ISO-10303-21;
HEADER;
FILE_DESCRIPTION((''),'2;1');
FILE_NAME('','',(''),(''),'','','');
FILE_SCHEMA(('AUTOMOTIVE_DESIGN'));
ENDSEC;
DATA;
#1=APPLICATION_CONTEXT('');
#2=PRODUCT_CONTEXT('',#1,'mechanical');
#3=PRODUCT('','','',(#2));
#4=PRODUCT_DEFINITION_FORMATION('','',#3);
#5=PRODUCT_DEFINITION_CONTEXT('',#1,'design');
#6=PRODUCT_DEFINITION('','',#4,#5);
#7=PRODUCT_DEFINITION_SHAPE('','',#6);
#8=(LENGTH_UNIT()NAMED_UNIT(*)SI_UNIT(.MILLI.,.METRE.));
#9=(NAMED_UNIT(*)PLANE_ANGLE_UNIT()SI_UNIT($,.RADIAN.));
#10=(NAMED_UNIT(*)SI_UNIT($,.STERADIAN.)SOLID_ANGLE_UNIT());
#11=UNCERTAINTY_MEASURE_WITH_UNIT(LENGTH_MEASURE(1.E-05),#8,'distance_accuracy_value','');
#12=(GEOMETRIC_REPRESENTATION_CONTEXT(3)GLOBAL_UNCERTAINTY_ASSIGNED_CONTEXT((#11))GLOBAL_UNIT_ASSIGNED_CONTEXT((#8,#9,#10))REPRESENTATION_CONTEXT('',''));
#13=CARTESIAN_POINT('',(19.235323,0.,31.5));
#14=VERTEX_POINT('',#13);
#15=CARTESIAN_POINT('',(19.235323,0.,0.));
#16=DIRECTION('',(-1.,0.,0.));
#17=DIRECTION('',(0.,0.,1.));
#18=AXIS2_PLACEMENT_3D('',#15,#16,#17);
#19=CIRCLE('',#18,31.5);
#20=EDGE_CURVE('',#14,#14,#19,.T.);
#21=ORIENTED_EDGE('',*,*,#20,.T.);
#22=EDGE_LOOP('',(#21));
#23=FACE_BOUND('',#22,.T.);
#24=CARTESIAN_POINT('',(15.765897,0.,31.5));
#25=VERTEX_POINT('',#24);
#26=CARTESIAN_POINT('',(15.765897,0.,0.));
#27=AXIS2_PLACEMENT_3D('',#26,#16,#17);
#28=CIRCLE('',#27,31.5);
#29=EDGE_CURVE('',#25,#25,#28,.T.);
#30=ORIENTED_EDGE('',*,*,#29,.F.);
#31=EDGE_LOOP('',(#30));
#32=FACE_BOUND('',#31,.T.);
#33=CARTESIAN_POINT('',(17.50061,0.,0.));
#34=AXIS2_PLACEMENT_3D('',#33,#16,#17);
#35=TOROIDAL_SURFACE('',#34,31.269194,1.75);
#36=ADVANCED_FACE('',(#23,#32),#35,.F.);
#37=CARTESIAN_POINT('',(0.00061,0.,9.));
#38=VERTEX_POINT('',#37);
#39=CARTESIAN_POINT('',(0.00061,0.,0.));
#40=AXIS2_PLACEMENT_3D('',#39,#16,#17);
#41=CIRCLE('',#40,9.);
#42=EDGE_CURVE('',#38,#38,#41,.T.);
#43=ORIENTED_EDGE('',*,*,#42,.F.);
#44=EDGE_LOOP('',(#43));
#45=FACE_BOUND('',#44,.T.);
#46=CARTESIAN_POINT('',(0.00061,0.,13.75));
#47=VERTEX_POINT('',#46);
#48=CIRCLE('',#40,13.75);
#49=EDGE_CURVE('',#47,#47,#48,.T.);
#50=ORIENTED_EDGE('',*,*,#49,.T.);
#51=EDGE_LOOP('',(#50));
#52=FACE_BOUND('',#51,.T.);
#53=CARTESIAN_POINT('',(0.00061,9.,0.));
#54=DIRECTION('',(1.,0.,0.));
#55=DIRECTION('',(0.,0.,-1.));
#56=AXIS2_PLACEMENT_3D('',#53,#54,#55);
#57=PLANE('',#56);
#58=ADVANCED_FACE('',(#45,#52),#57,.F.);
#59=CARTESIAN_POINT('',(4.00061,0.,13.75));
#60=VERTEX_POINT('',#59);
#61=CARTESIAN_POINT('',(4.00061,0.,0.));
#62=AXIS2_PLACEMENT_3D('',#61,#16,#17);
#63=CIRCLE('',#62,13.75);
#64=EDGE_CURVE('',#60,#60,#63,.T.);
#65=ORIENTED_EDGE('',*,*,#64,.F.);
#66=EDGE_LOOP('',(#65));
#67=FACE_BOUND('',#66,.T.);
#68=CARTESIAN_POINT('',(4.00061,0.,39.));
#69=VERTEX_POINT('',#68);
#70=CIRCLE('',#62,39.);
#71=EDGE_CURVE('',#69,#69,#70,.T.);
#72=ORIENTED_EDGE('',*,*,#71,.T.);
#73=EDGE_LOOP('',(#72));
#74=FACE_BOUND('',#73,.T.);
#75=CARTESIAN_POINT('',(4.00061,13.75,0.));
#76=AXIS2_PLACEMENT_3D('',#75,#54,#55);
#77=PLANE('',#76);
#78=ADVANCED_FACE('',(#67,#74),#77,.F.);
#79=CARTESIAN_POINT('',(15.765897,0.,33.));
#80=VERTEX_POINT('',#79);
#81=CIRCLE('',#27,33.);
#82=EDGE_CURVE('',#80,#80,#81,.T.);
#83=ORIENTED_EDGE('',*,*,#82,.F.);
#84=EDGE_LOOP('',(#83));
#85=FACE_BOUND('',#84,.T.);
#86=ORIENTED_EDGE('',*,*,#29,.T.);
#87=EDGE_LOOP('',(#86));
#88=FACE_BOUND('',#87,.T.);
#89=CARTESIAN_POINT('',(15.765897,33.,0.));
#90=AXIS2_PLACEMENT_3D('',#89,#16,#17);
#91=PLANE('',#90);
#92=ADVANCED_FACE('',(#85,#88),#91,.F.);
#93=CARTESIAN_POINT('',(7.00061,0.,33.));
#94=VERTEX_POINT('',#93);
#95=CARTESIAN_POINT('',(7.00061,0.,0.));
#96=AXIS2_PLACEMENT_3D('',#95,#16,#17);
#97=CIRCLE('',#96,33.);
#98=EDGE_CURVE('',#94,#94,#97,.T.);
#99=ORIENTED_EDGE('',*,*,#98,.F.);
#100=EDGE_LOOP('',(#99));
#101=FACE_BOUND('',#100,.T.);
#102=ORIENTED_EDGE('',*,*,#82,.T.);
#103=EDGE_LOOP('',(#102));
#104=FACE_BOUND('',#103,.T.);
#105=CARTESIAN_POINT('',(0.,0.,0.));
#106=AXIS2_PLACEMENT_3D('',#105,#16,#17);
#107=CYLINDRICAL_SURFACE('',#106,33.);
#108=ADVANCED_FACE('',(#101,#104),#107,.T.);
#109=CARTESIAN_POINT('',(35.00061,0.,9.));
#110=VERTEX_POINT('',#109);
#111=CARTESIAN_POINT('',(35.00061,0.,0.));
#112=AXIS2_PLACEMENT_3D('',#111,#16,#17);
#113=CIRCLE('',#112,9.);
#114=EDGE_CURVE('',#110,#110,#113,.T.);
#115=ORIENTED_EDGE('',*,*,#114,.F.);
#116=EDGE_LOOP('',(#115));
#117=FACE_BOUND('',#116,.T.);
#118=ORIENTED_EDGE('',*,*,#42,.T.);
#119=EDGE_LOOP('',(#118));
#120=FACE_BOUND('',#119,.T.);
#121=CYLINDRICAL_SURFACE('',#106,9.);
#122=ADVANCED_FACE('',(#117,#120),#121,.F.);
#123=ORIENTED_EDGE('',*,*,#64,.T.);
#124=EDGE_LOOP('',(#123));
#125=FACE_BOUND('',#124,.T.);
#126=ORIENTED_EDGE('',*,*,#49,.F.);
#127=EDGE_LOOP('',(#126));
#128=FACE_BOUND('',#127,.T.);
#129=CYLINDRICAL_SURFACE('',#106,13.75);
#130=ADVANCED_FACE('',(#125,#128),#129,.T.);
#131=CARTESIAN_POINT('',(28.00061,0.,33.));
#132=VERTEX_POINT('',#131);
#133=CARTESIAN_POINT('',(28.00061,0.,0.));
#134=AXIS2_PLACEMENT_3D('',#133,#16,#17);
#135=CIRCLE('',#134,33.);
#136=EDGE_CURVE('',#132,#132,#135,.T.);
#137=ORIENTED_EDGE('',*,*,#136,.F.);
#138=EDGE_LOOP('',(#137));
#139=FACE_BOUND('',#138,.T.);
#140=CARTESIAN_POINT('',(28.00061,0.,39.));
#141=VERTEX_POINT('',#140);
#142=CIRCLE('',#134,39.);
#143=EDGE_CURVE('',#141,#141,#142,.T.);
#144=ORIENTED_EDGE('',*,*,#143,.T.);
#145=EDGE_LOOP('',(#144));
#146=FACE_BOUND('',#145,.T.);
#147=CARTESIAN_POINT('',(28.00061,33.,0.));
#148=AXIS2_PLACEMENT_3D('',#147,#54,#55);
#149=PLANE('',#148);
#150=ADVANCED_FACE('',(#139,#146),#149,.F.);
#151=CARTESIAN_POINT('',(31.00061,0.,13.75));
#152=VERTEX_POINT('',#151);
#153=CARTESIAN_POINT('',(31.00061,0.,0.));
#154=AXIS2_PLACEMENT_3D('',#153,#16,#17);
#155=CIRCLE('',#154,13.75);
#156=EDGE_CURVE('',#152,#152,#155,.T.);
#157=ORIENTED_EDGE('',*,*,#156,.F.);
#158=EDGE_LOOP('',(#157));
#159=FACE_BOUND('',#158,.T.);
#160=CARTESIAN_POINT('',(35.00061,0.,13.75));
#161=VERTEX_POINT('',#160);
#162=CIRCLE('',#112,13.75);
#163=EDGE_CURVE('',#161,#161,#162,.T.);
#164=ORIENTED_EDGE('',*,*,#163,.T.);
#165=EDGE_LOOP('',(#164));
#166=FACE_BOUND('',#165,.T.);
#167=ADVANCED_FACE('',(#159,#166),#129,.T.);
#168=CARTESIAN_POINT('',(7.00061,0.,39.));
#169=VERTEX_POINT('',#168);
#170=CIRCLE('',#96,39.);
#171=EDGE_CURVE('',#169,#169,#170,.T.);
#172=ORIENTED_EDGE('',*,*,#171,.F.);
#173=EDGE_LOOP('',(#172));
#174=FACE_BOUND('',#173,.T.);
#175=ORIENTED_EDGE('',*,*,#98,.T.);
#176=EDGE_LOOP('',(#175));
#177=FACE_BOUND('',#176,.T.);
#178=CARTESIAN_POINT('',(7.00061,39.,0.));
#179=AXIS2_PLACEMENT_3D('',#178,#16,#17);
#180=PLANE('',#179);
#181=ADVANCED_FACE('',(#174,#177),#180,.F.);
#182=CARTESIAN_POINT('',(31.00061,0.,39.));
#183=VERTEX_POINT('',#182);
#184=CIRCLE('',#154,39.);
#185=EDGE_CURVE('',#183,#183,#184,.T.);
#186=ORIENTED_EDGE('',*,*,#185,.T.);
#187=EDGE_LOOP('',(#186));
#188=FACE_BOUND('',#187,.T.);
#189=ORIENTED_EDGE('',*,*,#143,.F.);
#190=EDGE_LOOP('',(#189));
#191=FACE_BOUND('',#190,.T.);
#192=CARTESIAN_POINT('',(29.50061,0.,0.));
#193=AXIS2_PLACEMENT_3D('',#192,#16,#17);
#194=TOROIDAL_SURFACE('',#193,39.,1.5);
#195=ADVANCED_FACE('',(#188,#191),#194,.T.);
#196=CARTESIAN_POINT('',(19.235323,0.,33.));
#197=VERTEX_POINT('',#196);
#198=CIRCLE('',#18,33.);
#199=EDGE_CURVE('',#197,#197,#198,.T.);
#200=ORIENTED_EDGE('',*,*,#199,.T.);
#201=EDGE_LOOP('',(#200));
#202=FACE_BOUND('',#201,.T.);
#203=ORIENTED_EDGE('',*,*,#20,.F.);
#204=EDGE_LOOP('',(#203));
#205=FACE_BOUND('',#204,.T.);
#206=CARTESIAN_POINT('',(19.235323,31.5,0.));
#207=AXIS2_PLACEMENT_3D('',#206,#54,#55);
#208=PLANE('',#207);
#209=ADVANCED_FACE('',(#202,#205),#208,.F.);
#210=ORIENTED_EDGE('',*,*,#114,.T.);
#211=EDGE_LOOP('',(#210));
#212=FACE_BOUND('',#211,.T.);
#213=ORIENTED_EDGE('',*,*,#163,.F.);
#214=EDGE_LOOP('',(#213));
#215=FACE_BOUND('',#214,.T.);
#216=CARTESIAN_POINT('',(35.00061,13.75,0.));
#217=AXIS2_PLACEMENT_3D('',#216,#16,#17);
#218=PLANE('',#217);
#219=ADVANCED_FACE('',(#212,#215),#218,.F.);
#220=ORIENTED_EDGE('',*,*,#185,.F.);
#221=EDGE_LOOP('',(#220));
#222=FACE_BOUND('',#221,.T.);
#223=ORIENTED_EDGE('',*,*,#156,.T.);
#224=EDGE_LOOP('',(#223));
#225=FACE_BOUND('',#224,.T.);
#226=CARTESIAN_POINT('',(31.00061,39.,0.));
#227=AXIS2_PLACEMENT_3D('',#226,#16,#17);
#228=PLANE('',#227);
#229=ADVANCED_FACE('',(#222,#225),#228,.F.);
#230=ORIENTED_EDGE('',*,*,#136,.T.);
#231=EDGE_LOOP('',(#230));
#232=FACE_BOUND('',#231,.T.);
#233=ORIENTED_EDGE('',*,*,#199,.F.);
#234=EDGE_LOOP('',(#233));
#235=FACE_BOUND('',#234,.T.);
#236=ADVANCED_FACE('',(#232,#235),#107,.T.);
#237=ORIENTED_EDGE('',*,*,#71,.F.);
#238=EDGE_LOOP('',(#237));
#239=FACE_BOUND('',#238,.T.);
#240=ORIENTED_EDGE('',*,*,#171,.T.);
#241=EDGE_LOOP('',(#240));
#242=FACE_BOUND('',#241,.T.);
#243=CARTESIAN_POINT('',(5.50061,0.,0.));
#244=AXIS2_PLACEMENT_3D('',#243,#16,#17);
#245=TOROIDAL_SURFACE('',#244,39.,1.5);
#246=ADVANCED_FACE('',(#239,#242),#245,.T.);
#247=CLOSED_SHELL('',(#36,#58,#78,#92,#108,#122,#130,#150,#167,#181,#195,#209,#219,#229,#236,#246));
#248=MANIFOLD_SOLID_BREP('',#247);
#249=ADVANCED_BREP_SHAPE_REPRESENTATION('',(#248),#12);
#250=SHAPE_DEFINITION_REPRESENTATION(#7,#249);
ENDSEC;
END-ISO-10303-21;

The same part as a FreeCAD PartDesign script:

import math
import FreeCAD as App
import Part
import Sketcher

doc = App.newDocument("Part")
body = doc.addObject("PartDesign::Body", "Body")

# Sketch on XY plane
sketch1 = doc.addObject("Sketcher::SketchObject", "Sketch")
body.addObject(sketch1)
sketch1.AttachmentSupport = (doc.XY_Plane, [""])
sketch1.MapMode = "FlatFace"
sketch1.addGeometry(Part.LineSegment(App.Vector(0, 13.7, 0), App.Vector(0, 9, 0)), False)
sketch1.addGeometry(Part.LineSegment(App.Vector(0, 9, 0), App.Vector(35, 9, 0)), False)
sketch1.addGeometry(Part.LineSegment(App.Vector(35, 9, 0), App.Vector(35, 13.7, 0)), False)
sketch1.addGeometry(Part.LineSegment(App.Vector(35, 13.7, 0), App.Vector(31, 13.7, 0)), False)
sketch1.addGeometry(Part.LineSegment(App.Vector(31, 13.7, 0), App.Vector(31, 39, 0)), False)
sketch1.addGeometry(Part.ArcOfCircle(Part.Circle(App.Vector(29.5, 39, 0), App.Vector(0, 0, 1), 1.5), math.radians(0), math.radians(180)), False)
sketch1.addGeometry(Part.LineSegment(App.Vector(28, 39, 0), App.Vector(28, 33, 0)), False)
sketch1.addGeometry(Part.LineSegment(App.Vector(28, 33, 0), App.Vector(19.2, 33, 0)), False)
sketch1.addGeometry(Part.LineSegment(App.Vector(19.2, 33, 0), App.Vector(19.2, 31.5, 0)), False)
sketch1.addGeometry(Part.ArcOfCircle(Part.Circle(App.Vector(17.5, 31.3, 0), App.Vector(0, 0, 1), 1.8), math.radians(172), math.radians(368)), False)
sketch1.addGeometry(Part.LineSegment(App.Vector(15.8, 31.5, 0), App.Vector(15.8, 33, 0)), False)
sketch1.addGeometry(Part.LineSegment(App.Vector(15.8, 33, 0), App.Vector(7, 33, 0)), False)
sketch1.addGeometry(Part.LineSegment(App.Vector(7, 33, 0), App.Vector(7, 39, 0)), False)
sketch1.addGeometry(Part.ArcOfCircle(Part.Circle(App.Vector(5.5, 39, 0), App.Vector(0, 0, 1), 1.5), math.radians(0), math.radians(180)), False)
sketch1.addGeometry(Part.LineSegment(App.Vector(4, 39, 0), App.Vector(4, 13.7, 0)), False)
sketch1.addGeometry(Part.LineSegment(App.Vector(4, 13.7, 0), App.Vector(0, 13.7, 0)), False)
sketch1.addConstraint(Sketcher.Constraint("Coincident", 0, 2, 1, 1))
sketch1.addConstraint(Sketcher.Constraint("Coincident", 1, 2, 2, 1))
sketch1.addConstraint(Sketcher.Constraint("Coincident", 2, 2, 3, 1))
sketch1.addConstraint(Sketcher.Constraint("Coincident", 3, 2, 4, 1))
sketch1.addConstraint(Sketcher.Constraint("Tangent", 4, 2, 5, 1))
sketch1.addConstraint(Sketcher.Constraint("Tangent", 5, 2, 6, 1))
sketch1.addConstraint(Sketcher.Constraint("Coincident", 6, 2, 7, 1))
sketch1.addConstraint(Sketcher.Constraint("Coincident", 7, 2, 8, 1))
sketch1.addConstraint(Sketcher.Constraint("Coincident", 8, 2, 9, 2))
sketch1.addConstraint(Sketcher.Constraint("Coincident", 9, 1, 10, 1))
sketch1.addConstraint(Sketcher.Constraint("Coincident", 10, 2, 11, 1))
sketch1.addConstraint(Sketcher.Constraint("Coincident", 11, 2, 12, 1))
sketch1.addConstraint(Sketcher.Constraint("Tangent", 12, 2, 13, 1))
sketch1.addConstraint(Sketcher.Constraint("Tangent", 13, 2, 14, 1))
sketch1.addConstraint(Sketcher.Constraint("Coincident", 14, 2, 15, 1))
sketch1.addConstraint(Sketcher.Constraint("Coincident", 15, 2, 0, 1))
sketch1.addConstraint(Sketcher.Constraint("Vertical", 0))
sketch1.addConstraint(Sketcher.Constraint("Horizontal", 1))
sketch1.addConstraint(Sketcher.Constraint("Vertical", 2))
sketch1.addConstraint(Sketcher.Constraint("Horizontal", 3))
sketch1.addConstraint(Sketcher.Constraint("Vertical", 4))
sketch1.addConstraint(Sketcher.Constraint("Vertical", 6))
sketch1.addConstraint(Sketcher.Constraint("Horizontal", 7))
sketch1.addConstraint(Sketcher.Constraint("Vertical", 8))
sketch1.addConstraint(Sketcher.Constraint("Vertical", 10))
sketch1.addConstraint(Sketcher.Constraint("Horizontal", 11))
sketch1.addConstraint(Sketcher.Constraint("Vertical", 12))
sketch1.addConstraint(Sketcher.Constraint("Vertical", 14))
sketch1.addConstraint(Sketcher.Constraint("Horizontal", 15))
sketch1.addConstraint(Sketcher.Constraint("Equal", 5, 13))
sketch1.addConstraint(Sketcher.Constraint("Horizontal", 5, 3, 13, 3))
sketch1.addConstraint(Sketcher.Constraint("Horizontal", 8, 2, 9, 1))
sketch1.addConstraint(Sketcher.Constraint("Horizontal", 7, 2, 10, 2))
sketch1.addConstraint(Sketcher.Constraint("Horizontal", 3, 2, 14, 2))
sketch1.addConstraint(Sketcher.Constraint("Equal", 7, 11))
sketch1.addConstraint(Sketcher.Constraint("Equal", 3, 15))
sketch1.addConstraint(Sketcher.Constraint("Radius", 5, 1.5))
sketch1.addConstraint(Sketcher.Constraint("DistanceX", 1, 1, 1, 2, 35.0))
sketch1.addConstraint(Sketcher.Constraint("DistanceX", 3, 2, 3, 1, 4.0))
sketch1.addConstraint(Sketcher.Constraint("DistanceY", 6, 2, 6, 1, 6.0))
sketch1.addConstraint(Sketcher.Constraint("Radius", 9, 1.75))
sketch1.addConstraint(Sketcher.Constraint("DistanceY", 8, 2, 8, 1, 1.5))
sketch1.addConstraint(Sketcher.Constraint("DistanceY", -1, 1, 5, 3, 39.0))
sketch1.addConstraint(Sketcher.Constraint("DistanceY", -1, 1, 0, 2, 9.0))
sketch1.addConstraint(Sketcher.Constraint("DistanceY", 0, 2, 0, 1, 4.75))
sketch1.addConstraint(Sketcher.Constraint("DistanceX", 7, 2, 7, 1, 8.765287))
sketch1.addConstraint(Sketcher.Constraint("DistanceX", -1, 1, 5, 3, 29.50061))
revolution = doc.addObject("PartDesign::Revolution", "Revolution")
body.addObject(revolution)
revolution.Profile = sketch1
revolution.ReferenceAxis = (sketch1, ["H_Axis"])
revolution.Angle = 360

doc.recompute()
